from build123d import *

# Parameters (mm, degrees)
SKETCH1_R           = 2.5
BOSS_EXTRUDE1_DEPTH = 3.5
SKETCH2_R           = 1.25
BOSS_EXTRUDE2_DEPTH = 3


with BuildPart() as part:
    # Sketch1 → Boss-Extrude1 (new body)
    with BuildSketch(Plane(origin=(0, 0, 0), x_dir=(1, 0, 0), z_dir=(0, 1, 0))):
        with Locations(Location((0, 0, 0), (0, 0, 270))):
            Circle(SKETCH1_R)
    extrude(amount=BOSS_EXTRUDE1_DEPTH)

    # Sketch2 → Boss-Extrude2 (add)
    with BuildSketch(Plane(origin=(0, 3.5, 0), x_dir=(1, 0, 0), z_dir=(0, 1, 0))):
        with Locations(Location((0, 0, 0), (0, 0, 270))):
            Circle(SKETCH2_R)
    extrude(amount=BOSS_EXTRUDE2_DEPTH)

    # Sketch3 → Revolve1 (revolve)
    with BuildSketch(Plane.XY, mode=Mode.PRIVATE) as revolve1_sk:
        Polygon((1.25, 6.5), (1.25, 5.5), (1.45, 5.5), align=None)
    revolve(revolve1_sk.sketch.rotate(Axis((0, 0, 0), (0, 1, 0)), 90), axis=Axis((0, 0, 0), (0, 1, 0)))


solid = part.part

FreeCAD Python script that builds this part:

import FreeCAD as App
import Part
import Sketcher

V = App.Vector
Q = App.Units.Quantity

doc = App.newDocument("Part")
body = doc.addObject("PartDesign::Body", "Body")

sketch1 = body.newObject("Sketcher::SketchObject", "Sketch")
sketch1.AttachmentSupport = (doc.getObject("XZ_Plane"), [""])
sketch1.MapMode = "FlatFace"
sketch1.addGeometry(Part.Circle(V(0, 0, 0), V(0, 0, 1), 2.5), False)
sketch1.addConstraint(Sketcher.Constraint("Coincident", 0, 3, -1, 1))
sketch1.addConstraint(Sketcher.Constraint("Diameter", 0, Q("5 mm")))
pad1 = body.newObject("PartDesign::Pad", "Pad")
pad1.Profile = sketch1
pad1.Length = 3.5
pad1.Reversed = True

sketch2 = body.newObject("Sketcher::SketchObject", "Sketch001")
sketch2.AttachmentSupport = (doc.getObject("XZ_Plane"), [""])
sketch2.MapMode = "FlatFace"
sketch2.AttachmentOffset = App.Placement(V(0, 0, -3.5), App.Rotation())
sketch2.addGeometry(Part.Circle(V(0, 0, 0), V(0, 0, 1), 1.2), False)
sketch2.addConstraint(Sketcher.Constraint("Coincident", 0, 3, -1, 1))
sketch2.addConstraint(Sketcher.Constraint("Diameter", 0, Q("2.5 mm")))
pad2 = body.newObject("PartDesign::Pad", "Pad001")
pad2.Profile = sketch2
pad2.Length = 3
pad2.Reversed = True

sketch3 = body.newObject("Sketcher::SketchObject", "Sketch002")
sketch3.AttachmentSupport = (doc.getObject("XY_Plane"), [""])
sketch3.MapMode = "FlatFace"
sketch3.addGeometry(Part.LineSegment(V(1.25, 6.5, 0), V(1.25, 5.5, 0)), False)
sketch3.addGeometry(Part.LineSegment(V(1.25, 5.5, 0), V(1.45, 5.5, 0)), False)
sketch3.addGeometry(Part.LineSegment(V(1.45, 5.5, 0), V(1.25, 6.5, 0)), False)
sketch3.addConstraint(Sketcher.Constraint("Coincident", 0, 2, 1, 1))
sketch3.addConstraint(Sketcher.Constraint("Coincident", 1, 2, 2, 1))
sketch3.addConstraint(Sketcher.Constraint("Coincident", 2, 2, 0, 1))
sketch3.addConstraint(Sketcher.Constraint("Vertical", 0))
sketch3.addConstraint(Sketcher.Constraint("Horizontal", 1))
sketch3.addConstraint(Sketcher.Constraint("DistanceY", 0, 2, 0, 1, Q("1 mm")))
sketch3.addConstraint(Sketcher.Constraint("DistanceX", 1, 1, 1, 2, Q("0.2 mm")))
sketch3.addConstraint(Sketcher.Constraint("DistanceY", -1, 1, 0, 2, Q("5.5 mm")))
sketch3.addConstraint(Sketcher.Constraint("DistanceX", -1, 1, 0, 2, Q("1.25 mm")))
revolution = body.newObject("PartDesign::Revolution", "Revolution")
revolution.Profile = sketch3
revolution.ReferenceAxis = (sketch3, ["V_Axis"])
revolution.Angle = 360

doc.recompute()
